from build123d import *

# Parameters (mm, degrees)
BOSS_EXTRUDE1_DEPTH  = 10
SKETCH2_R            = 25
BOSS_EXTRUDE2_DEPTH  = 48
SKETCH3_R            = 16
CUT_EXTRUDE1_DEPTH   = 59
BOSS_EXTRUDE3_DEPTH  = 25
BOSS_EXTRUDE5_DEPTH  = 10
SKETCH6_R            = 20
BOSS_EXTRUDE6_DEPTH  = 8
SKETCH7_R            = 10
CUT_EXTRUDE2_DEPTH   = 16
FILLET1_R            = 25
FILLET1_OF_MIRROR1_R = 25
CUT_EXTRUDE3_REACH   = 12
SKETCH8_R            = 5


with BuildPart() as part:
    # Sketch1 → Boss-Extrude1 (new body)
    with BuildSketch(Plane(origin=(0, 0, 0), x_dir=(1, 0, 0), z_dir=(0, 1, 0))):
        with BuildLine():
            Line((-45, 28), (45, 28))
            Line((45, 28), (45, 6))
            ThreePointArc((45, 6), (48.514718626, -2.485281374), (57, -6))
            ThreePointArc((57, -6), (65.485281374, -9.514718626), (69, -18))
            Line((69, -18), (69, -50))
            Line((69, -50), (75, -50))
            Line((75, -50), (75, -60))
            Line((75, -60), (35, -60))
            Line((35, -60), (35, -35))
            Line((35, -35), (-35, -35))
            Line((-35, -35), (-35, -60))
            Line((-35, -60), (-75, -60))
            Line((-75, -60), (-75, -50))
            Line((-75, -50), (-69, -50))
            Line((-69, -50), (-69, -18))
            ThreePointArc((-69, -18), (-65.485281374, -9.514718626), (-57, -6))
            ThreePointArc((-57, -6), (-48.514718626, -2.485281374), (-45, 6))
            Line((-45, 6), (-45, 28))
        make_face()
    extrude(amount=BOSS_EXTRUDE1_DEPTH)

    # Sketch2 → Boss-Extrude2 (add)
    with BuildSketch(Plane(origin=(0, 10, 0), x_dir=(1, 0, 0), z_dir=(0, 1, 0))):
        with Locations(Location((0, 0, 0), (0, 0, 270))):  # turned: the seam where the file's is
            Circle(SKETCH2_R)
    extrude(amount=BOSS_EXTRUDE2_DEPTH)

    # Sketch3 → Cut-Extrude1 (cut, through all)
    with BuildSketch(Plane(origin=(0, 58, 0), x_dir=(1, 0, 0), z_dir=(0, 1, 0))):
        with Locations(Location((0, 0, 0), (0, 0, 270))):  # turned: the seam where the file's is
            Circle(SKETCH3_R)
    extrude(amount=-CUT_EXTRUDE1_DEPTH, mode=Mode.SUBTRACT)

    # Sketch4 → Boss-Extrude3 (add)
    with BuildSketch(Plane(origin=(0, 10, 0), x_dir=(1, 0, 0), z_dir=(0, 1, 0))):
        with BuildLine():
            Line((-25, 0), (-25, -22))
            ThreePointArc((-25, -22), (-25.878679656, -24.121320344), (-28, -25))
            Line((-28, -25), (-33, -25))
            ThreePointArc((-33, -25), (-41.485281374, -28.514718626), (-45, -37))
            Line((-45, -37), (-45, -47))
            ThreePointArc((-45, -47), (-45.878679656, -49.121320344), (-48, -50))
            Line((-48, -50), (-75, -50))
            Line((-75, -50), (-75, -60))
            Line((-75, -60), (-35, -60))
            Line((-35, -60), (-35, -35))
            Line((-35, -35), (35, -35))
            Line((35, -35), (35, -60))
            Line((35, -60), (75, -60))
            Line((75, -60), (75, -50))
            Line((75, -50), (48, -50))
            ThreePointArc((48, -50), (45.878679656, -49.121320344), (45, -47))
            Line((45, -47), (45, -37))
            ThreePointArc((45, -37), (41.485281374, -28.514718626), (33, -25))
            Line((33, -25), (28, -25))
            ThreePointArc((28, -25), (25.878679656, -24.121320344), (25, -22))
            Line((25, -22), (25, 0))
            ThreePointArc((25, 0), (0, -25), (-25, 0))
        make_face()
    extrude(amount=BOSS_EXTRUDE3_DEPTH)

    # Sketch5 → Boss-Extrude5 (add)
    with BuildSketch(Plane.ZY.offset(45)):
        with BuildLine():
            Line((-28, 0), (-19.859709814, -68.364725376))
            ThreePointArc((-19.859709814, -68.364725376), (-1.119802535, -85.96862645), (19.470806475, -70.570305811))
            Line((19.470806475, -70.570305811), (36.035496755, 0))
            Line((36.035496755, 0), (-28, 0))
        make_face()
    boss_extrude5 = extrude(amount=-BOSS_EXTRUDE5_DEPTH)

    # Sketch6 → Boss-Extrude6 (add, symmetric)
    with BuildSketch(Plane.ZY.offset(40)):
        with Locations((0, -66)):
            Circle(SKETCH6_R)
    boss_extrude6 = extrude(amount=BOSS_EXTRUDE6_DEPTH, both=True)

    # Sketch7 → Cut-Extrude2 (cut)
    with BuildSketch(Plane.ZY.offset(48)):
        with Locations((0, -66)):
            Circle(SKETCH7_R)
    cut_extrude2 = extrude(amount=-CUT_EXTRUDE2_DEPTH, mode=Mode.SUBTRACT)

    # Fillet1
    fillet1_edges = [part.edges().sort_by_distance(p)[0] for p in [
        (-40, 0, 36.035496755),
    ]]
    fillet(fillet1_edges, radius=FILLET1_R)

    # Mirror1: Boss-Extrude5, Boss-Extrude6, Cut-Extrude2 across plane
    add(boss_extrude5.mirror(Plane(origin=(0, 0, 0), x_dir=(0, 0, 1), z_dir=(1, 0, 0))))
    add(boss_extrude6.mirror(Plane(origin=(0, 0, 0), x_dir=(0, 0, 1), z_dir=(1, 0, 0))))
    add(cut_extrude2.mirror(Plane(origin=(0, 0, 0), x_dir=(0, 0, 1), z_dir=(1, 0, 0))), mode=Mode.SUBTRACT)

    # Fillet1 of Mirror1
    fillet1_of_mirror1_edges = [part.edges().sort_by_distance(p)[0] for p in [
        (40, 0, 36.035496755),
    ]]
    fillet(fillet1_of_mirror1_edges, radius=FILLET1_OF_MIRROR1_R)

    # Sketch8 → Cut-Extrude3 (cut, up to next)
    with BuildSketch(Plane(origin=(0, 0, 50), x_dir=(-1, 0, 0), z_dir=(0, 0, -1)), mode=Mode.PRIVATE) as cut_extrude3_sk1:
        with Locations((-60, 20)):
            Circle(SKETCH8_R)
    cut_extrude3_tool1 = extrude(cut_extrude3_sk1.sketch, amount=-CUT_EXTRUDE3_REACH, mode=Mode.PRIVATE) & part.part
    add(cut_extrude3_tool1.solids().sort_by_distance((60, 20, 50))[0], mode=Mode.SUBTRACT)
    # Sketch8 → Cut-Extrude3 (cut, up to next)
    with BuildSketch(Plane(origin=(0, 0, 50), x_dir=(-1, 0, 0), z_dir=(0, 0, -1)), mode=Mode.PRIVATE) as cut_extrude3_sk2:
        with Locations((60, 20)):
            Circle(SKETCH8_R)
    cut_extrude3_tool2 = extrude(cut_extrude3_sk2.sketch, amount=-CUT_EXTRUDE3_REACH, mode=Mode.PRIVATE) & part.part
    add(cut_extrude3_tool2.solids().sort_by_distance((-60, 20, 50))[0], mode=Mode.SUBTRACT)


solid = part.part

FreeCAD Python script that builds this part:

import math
import FreeCAD as App
import Part
import Sketcher

V = App.Vector
Q = App.Units.Quantity


def edges_at(feature, points):
    """Names of the edges that pass closest to the given points."""
    edges = feature.Shape.Edges
    near = lambda p: min(range(len(edges)), key=lambda i: edges[i].distToShape(Part.Vertex(*p))[0])
    return sorted({f"Edge{near(p) + 1}" for p in points})

doc = App.newDocument("Part")
body = doc.addObject("PartDesign::Body", "Body")

sketch1 = doc.addObject("Sketcher::SketchObject", "Sketch")
body.addObject(sketch1)
sketch1.AttachmentSupport = (doc.XZ_Plane, [""])
sketch1.MapMode = "FlatFace"
sketch1.addGeometry([
    Part.LineSegment(V(45, -28, 0), V(-45, -28, 0)),
    Part.LineSegment(V(-45, -28, 0), V(-45, -6, 0)),
    Part.ArcOfCircle(Part.Circle(V(-57, -6, 0), V(0, 0, 1), 12), math.radians(0), math.radians(90)),
    Part.ArcOfCircle(Part.Circle(V(-57, 18, 0), V(0, 0, 1), 12), math.radians(-180), math.radians(-90)),
    Part.LineSegment(V(-69, 18, 0), V(-69, 50, 0)),
    Part.LineSegment(V(-69, 50, 0), V(-75, 50, 0)),
    Part.LineSegment(V(-75, 50, 0), V(-75, 60, 0)),
    Part.LineSegment(V(-75, 60, 0), V(-35, 60, 0)),
    Part.LineSegment(V(-35, 60, 0), V(-35, 35, 0)),
    Part.LineSegment(V(-35, 35, 0), V(35, 35, 0)),
    Part.LineSegment(V(35, 35, 0), V(35, 60, 0)),
    Part.LineSegment(V(35, 60, 0), V(75, 60, 0)),
    Part.LineSegment(V(75, 60, 0), V(75, 50, 0)),
    Part.LineSegment(V(75, 50, 0), V(69, 50, 0)),
    Part.LineSegment(V(69, 50, 0), V(69, 18, 0)),
    Part.ArcOfCircle(Part.Circle(V(57, 18, 0), V(0, 0, 1), 12), math.radians(-90), math.radians(0)),
    Part.ArcOfCircle(Part.Circle(V(57, -6, 0), V(0, 0, 1), 12), math.radians(90), math.radians(180)),
    Part.LineSegment(V(45, -6, 0), V(45, -28, 0)),
], False)
sketch1.addConstraint([
    Sketcher.Constraint("Coincident", 0, 2, 1, 1),
    Sketcher.Constraint("Tangent", 1, 2, 2, 1),
    Sketcher.Constraint("Tangent", 2, 2, 3, 2),
    Sketcher.Constraint("Tangent", 3, 1, 4, 1),
    Sketcher.Constraint("Coincident", 4, 2, 5, 1),
    Sketcher.Constraint("Coincident", 5, 2, 6, 1),
    Sketcher.Constraint("Coincident", 6, 2, 7, 1),
    Sketcher.Constraint("Coincident", 7, 2, 8, 1),
    Sketcher.Constraint("Coincident", 8, 2, 9, 1),
    Sketcher.Constraint("Coincident", 9, 2, 10, 1),
    Sketcher.Constraint("Coincident", 10, 2, 11, 1),
    Sketcher.Constraint("Coincident", 11, 2, 12, 1),
    Sketcher.Constraint("Coincident", 12, 2, 13, 1),
    Sketcher.Constraint("Coincident", 13, 2, 14, 1),
    Sketcher.Constraint("Tangent", 14, 2, 15, 2),
    Sketcher.Constraint("Tangent", 15, 1, 16, 1),
    Sketcher.Constraint("Tangent", 16, 2, 17, 1),
    Sketcher.Constraint("Coincident", 17, 2, 0, 1),
    Sketcher.Constraint("Horizontal", 0),
    Sketcher.Constraint("Vertical", 1),
    Sketcher.Constraint("Vertical", 4),
    Sketcher.Constraint("Horizontal", 5),
    Sketcher.Constraint("Vertical", 6),
    Sketcher.Constraint("Horizontal", 7),
    Sketcher.Constraint("Vertical", 8),
    Sketcher.Constraint("Horizontal", 9),
    Sketcher.Constraint("Vertical", 10),
    Sketcher.Constraint("Horizontal", 11),
    Sketcher.Constraint("Vertical", 12),
    Sketcher.Constraint("Horizontal", 13),
    Sketcher.Constraint("Vertical", 14),
    Sketcher.Constraint("Vertical", 17),
    Sketcher.Constraint("Equal", 2, 3),
    Sketcher.Constraint("Equal", 3, 15),
    Sketcher.Constraint("Equal", 15, 16),
    Sketcher.Constraint("Symmetric", 3, 3, 15, 3, -2),
    Sketcher.Constraint("Symmetric", 7, 2, 10, 2, -2),
    Sketcher.Constraint("Symmetric", 5, 2, 12, 2, -2),
    Sketcher.Constraint("Vertical", 2, 3, 3, 3),
    Sketcher.Constraint("Vertical", 15, 3, 16, 3),
    Sketcher.Constraint("Radius", 2, Q("12 mm")),
    Sketcher.Constraint("DistanceX", 0, 2, 0, 1, Q("90 mm")),
    Sketcher.Constraint("DistanceX", 5, 2, 5, 1, Q("6 mm")),
    Sketcher.Constraint("DistanceX", 7, 1, 7, 2, Q("40 mm")),
    Sketcher.Constraint("DistanceY", 1, 1, 1, 2, Q("22 mm")),
    Sketcher.Constraint("DistanceY", 4, 1, 4, 2, Q("32 mm")),
    Sketcher.Constraint("DistanceY", 6, 1, 6, 2, Q("10 mm")),
    Sketcher.Constraint("DistanceY", 8, 2, 8, 1, Q("25 mm")),
    Sketcher.Constraint("DistanceY", 2, 3, -1, 1, Q("6 mm")),
])
pad1 = doc.addObject("PartDesign::Pad", "Pad")
body.addObject(pad1)
pad1.Profile = sketch1
pad1.Length = 10
pad1.Reversed = True

sketch2 = doc.addObject("Sketcher::SketchObject", "Sketch001")
body.addObject(sketch2)
sketch2.AttachmentSupport = (doc.XZ_Plane, [""])
sketch2.MapMode = "FlatFace"
sketch2.AttachmentOffset = App.Placement(V(0, 0, -10), App.Rotation())
sketch2.addGeometry(Part.Circle(V(0, 0, 0), V(0, 0, 1), 25), False)
sketch2.addConstraint([
    Sketcher.Constraint("Coincident", 0, 3, -1, 1),
    Sketcher.Constraint("Diameter", 0, Q("50 mm")),
])
pad2 = doc.addObject("PartDesign::Pad", "Pad001")
body.addObject(pad2)
pad2.Profile = sketch2
pad2.Length = 48
pad2.Reversed = True

sketch3 = doc.addObject("Sketcher::SketchObject", "Sketch002")
body.addObject(sketch3)
sketch3.AttachmentSupport = (doc.XZ_Plane, [""])
sketch3.MapMode = "FlatFace"
sketch3.AttachmentOffset = App.Placement(V(0, 0, -58), App.Rotation())
sketch3.addGeometry(Part.Circle(V(0, 0, 0), V(0, 0, 1), 16), False)
sketch3.addConstraint([
    Sketcher.Constraint("Coincident", 0, 3, -1, 1),
    Sketcher.Constraint("Diameter", 0, Q("32 mm")),
])
pocket1 = doc.addObject("PartDesign::Pocket", "Pocket")
body.addObject(pocket1)
pocket1.Profile = sketch3
pocket1.Type = "ThroughAll"
pocket1.Reversed = True

sketch4 = doc.addObject("Sketcher::SketchObject", "Sketch003")
body.addObject(sketch4)
sketch4.AttachmentSupport = (doc.XZ_Plane, [""])
sketch4.MapMode = "FlatFace"
sketch4.AttachmentOffset = App.Placement(V(0, 0, -10), App.Rotation())
sketch4.addGeometry([
    Part.LineSegment(V(-25, 0, 0), V(-25, 22, 0)),
    Part.ArcOfCircle(Part.Circle(V(-28, 22, 0), V(0, 0, 1), 3), math.radians(0), math.radians(90)),
    Part.LineSegment(V(-28, 25, 0), V(-33, 25, 0)),
    Part.ArcOfCircle(Part.Circle(V(-33, 37, 0), V(0, 0, 1), 12), math.radians(-180), math.radians(-90)),
    Part.LineSegment(V(-45, 37, 0), V(-45, 47, 0)),
    Part.ArcOfCircle(Part.Circle(V(-48, 47, 0), V(0, 0, 1), 3), math.radians(0), math.radians(90)),
    Part.LineSegment(V(-48, 50, 0), V(-75, 50, 0)),
    Part.LineSegment(V(-75, 50, 0), V(-75, 60, 0)),
    Part.LineSegment(V(-75, 60, 0), V(-35, 60, 0)),
    Part.LineSegment(V(-35, 60, 0), V(-35, 35, 0)),
    Part.LineSegment(V(-35, 35, 0), V(35, 35, 0)),
    Part.LineSegment(V(35, 35, 0), V(35, 60, 0)),
    Part.LineSegment(V(35, 60, 0), V(75, 60, 0)),
    Part.LineSegment(V(75, 60, 0), V(75, 50, 0)),
    Part.LineSegment(V(75, 50, 0), V(48, 50, 0)),
    Part.ArcOfCircle(Part.Circle(V(48, 47, 0), V(0, 0, 1), 3), math.radians(90), math.radians(180)),
    Part.LineSegment(V(45, 47, 0), V(45, 37, 0)),
    Part.ArcOfCircle(Part.Circle(V(33, 37, 0), V(0, 0, 1), 12), math.radians(-90), math.radians(0)),
    Part.LineSegment(V(33, 25, 0), V(28, 25, 0)),
    Part.ArcOfCircle(Part.Circle(V(28, 22, 0), V(0, 0, 1), 3), math.radians(90), math.radians(180)),
    Part.LineSegment(V(25, 22, 0), V(25, 0, 0)),
    Part.ArcOfCircle(Part.Circle(V(0, 0, 0), V(0, 0, 1), 25), math.radians(0), math.radians(180)),
], False)
sketch4.addConstraint([
    Sketcher.Constraint("Tangent", 0, 2, 1, 1),
    Sketcher.Constraint("Tangent", 1, 2, 2, 1),
    Sketcher.Constraint("Tangent", 2, 2, 3, 2),
    Sketcher.Constraint("Tangent", 3, 1, 4, 1),
    Sketcher.Constraint("Tangent", 4, 2, 5, 1),
    Sketcher.Constraint("Tangent", 5, 2, 6, 1),
    Sketcher.Constraint("Coincident", 6, 2, 7, 1),
    Sketcher.Constraint("Coincident", 7, 2, 8, 1),
    Sketcher.Constraint("Coincident", 8, 2, 9, 1),
    Sketcher.Constraint("Coincident", 9, 2, 10, 1),
    Sketcher.Constraint("Coincident", 10, 2, 11, 1),
    Sketcher.Constraint("Coincident", 11, 2, 12, 1),
    Sketcher.Constraint("Coincident", 12, 2, 13, 1),
    Sketcher.Constraint("Coincident", 13, 2, 14, 1),
    Sketcher.Constraint("Tangent", 14, 2, 15, 1),
    Sketcher.Constraint("Tangent", 15, 2, 16, 1),
    Sketcher.Constraint("Tangent", 16, 2, 17, 2),
    Sketcher.Constraint("Tangent", 17, 1, 18, 1),
    Sketcher.Constraint("Tangent", 18, 2, 19, 1),
    Sketcher.Constraint("Tangent", 19, 2, 20, 1),
    Sketcher.Constraint("Tangent", 20, 2, 21, 1),
    Sketcher.Constraint("Tangent", 21, 2, 0, 1),
    Sketcher.Constraint("Vertical", 0),
    Sketcher.Constraint("Horizontal", 2),
    Sketcher.Constraint("Vertical", 4),
    Sketcher.Constraint("Horizontal", 6),
    Sketcher.Constraint("Vertical", 7),
    Sketcher.Constraint("Horizontal", 8),
    Sketcher.Constraint("Vertical", 9),
    Sketcher.Constraint("Horizontal", 10),
    Sketcher.Constraint("Vertical", 11),
    Sketcher.Constraint("Horizontal", 12),
    Sketcher.Constraint("Vertical", 13),
    Sketcher.Constraint("Horizontal", 14),
    Sketcher.Constraint("Vertical", 16),
    Sketcher.Constraint("Horizontal", 18),
    Sketcher.Constraint("Vertical", 20),
    Sketcher.Constraint("Coincident", 21, 3, -1, 1),
    Sketcher.Constraint("Equal", 1, 5),
    Sketcher.Constraint("Equal", 5, 15),
    Sketcher.Constraint("Equal", 3, 17),
    Sketcher.Constraint("Equal", 15, 19),
    Sketcher.Constraint("Symmetric", 5, 3, 15, 3, -2),
    Sketcher.Constraint("Symmetric", 8, 2, 11, 2, -2),
    Sketcher.Constraint("Horizontal", 3, 3, 17, 3),
    Sketcher.Constraint("Equal", 8, 12),
    Sketcher.Constraint("Equal", 4, 7),
    Sketcher.Constraint("Radius", 1, Q("3 mm")),
    Sketcher.Constraint("Radius", 3, Q("12 mm")),
    Sketcher.Constraint("Radius", 21, Q("25 mm")),
    Sketcher.Constraint("DistanceX", 2, 2, 2, 1, Q("5 mm")),
    Sketcher.Constraint("DistanceX", 6, 2, 6, 1, Q("27 mm")),
    Sketcher.Constraint("DistanceX", 8, 1, 8, 2, Q("40 mm")),
    Sketcher.Constraint("DistanceY", 0, 1, 0, 2, Q("22 mm")),
    Sketcher.Constraint("DistanceY", 4, 1, 4, 2, Q("10 mm")),
    Sketcher.Constraint("DistanceY", 9, 2, 9, 1, Q("25 mm")),
])
pad3 = doc.addObject("PartDesign::Pad", "Pad002")
body.addObject(pad3)
pad3.Profile = sketch4
pad3.Length = 25
pad3.Reversed = True

sketch5 = doc.addObject("Sketcher::SketchObject", "Sketch004")
body.addObject(sketch5)
sketch5.AttachmentSupport = (doc.YZ_Plane, [""])
sketch5.MapMode = "FlatFace"
sketch5.AttachmentOffset = App.Placement(V(0, 0, -45), App.Rotation())
sketch5.addGeometry([
    Part.LineSegment(V(0, -28, 0), V(-68.364725, -19.85971, 0)),
    Part.ArcOfCircle(Part.Circle(V(-66, 0, 0), V(0, 0, 1), 20), math.radians(103.209676), math.radians(263.209676)),
    Part.LineSegment(V(-70.570306, 19.470806, 0), V(0, 36.035497, 0)),
    Part.LineSegment(V(0, 36.035497, 0), V(0, -28, 0)),
], False)
sketch5.addConstraint([
    Sketcher.Constraint("Tangent", 0, 2, 1, 2),
    Sketcher.Constraint("Tangent", 1, 1, 2, 1),
    Sketcher.Constraint("Coincident", 2, 2, 3, 1),
    Sketcher.Constraint("Coincident", 3, 2, 0, 1),
    Sketcher.Constraint("Vertical", 3),
    Sketcher.Constraint("PointOnObject", 1, 3, -1),
    Sketcher.Constraint("PointOnObject", 2, 2, -2),
    Sketcher.Constraint("Radius", 1, Q("20 mm")),
    Sketcher.Constraint("DistanceX", 1, 3, -1, 1, Q("66 mm")),
    Sketcher.Constraint("DistanceY", 3, 2, -1, 1, Q("28 mm")),
    Sketcher.Constraint("DistanceY", 3, 2, 3, 1, Q("64.035497 mm")),
])
pad4 = doc.addObject("PartDesign::Pad", "Pad003")
body.addObject(pad4)
pad4.Profile = sketch5
pad4.Length = 10

sketch6 = doc.addObject("Sketcher::SketchObject", "Sketch005")
body.addObject(sketch6)
sketch6.AttachmentSupport = (doc.YZ_Plane, [""])
sketch6.MapMode = "FlatFace"
sketch6.AttachmentOffset = App.Placement(V(0, 0, -40), App.Rotation())
sketch6.addGeometry(Part.Circle(V(-66, 0, 0), V(0, 0, 1), 20), False)
sketch6.addConstraint([
    Sketcher.Constraint("PointOnObject", 0, 3, -1),
    Sketcher.Constraint("Diameter", 0, Q("40 mm")),
    Sketcher.Constraint("DistanceX", 0, 3, -1, 1, Q("66 mm")),
])
pad5 = doc.addObject("PartDesign::Pad", "Pad004")
body.addObject(pad5)
pad5.Profile = sketch6
pad5.Length = 16
pad5.Midplane = True

sketch7 = doc.addObject("Sketcher::SketchObject", "Sketch006")
body.addObject(sketch7)
sketch7.AttachmentSupport = (doc.YZ_Plane, [""])
sketch7.MapMode = "FlatFace"
sketch7.AttachmentOffset = App.Placement(V(0, 0, -48), App.Rotation())
sketch7.addGeometry(Part.Circle(V(-66, 0, 0), V(0, 0, 1), 10), False)
sketch7.addConstraint([
    Sketcher.Constraint("PointOnObject", 0, 3, -1),
    Sketcher.Constraint("Diameter", 0, Q("20 mm")),
    Sketcher.Constraint("DistanceX", 0, 3, -1, 1, Q("66 mm")),
])
pocket2 = doc.addObject("PartDesign::Pocket", "Pocket001")
body.addObject(pocket2)
pocket2.Profile = sketch7
pocket2.Length = 16
pocket2.Reversed = True
doc.recompute()

fillet = doc.addObject("PartDesign::Fillet", "Fillet")
body.addObject(fillet)
fillet.Base = (pocket2, edges_at(pocket2, [(-40, 0, 36.035)]))
fillet.Radius = 25
doc.recompute()

mirrored = doc.addObject("PartDesign::Mirrored", "Mirrored")
body.addObject(mirrored)
mirrored.Originals = [pad4, pad5, pocket2]
mirrored.MirrorPlane = (doc.YZ_Plane, [""])
body.Tip = mirrored
doc.recompute()

fillet2 = doc.addObject("PartDesign::Fillet", "Fillet001")
body.addObject(fillet2)
fillet2.Base = (mirrored, edges_at(mirrored, [(40, 0, 36.035)]))
fillet2.Radius = 25

sketch8 = doc.addObject("Sketcher::SketchObject", "Sketch007")
body.addObject(sketch8)
sketch8.AttachmentSupport = (doc.XY_Plane, [""])
sketch8.MapMode = "FlatFace"
sketch8.AttachmentOffset = App.Placement(V(0, 0, 50), App.Rotation())
sketch8.addGeometry(Part.Circle(V(60, 20, 0), V(0, 0, 1), 5), False)
sketch8.addConstraint([
    Sketcher.Constraint("Diameter", 0, Q("10 mm")),
    Sketcher.Constraint("DistanceX", -1, 1, 0, 3, Q("60 mm")),
    Sketcher.Constraint("DistanceY", -1, 1, 0, 3, Q("20 mm")),
])
pocket3 = doc.addObject("PartDesign::Pocket", "Pocket002")
body.addObject(pocket3)
pocket3.Profile = sketch8
pocket3.Type = "UpToFirst"
pocket3.Reversed = True

sketch9 = doc.addObject("Sketcher::SketchObject", "Sketch008")
body.addObject(sketch9)
sketch9.AttachmentSupport = (doc.XY_Plane, [""])
sketch9.MapMode = "FlatFace"
sketch9.AttachmentOffset = App.Placement(V(0, 0, 50), App.Rotation())
sketch9.addGeometry(Part.Circle(V(-60, 20, 0), V(0, 0, 1), 5), False)
sketch9.addConstraint([
    Sketcher.Constraint("Diameter", 0, Q("10 mm")),
    Sketcher.Constraint("DistanceX", 0, 3, -1, 1, Q("60 mm")),
    Sketcher.Constraint("DistanceY", -1, 1, 0, 3, Q("20 mm")),
])
pocket4 = doc.addObject("PartDesign::Pocket", "Pocket003")
body.addObject(pocket4)
pocket4.Profile = sketch9
pocket4.Type = "UpToFirst"
pocket4.Reversed = True

doc.recompute()
